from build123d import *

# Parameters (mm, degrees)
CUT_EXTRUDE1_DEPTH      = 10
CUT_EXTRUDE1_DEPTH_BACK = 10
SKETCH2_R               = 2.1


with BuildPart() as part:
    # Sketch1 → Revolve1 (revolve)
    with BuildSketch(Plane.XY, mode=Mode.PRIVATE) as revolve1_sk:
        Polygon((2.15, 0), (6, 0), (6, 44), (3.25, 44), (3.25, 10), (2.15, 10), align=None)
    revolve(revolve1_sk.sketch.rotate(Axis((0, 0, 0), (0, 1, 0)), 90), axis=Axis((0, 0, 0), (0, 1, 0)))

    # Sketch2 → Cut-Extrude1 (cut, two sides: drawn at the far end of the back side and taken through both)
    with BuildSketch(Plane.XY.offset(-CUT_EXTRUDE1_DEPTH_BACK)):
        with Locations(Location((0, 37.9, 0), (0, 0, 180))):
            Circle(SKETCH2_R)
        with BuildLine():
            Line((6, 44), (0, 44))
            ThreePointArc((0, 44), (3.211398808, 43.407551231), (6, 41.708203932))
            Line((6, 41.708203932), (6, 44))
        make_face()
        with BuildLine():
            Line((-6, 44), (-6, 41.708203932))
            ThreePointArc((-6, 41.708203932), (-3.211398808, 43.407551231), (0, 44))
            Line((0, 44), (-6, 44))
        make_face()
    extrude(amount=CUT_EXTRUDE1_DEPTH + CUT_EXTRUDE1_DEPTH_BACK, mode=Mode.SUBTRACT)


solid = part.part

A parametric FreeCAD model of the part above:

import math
import FreeCAD as App
import Part
import Sketcher

V = App.Vector
Q = App.Units.Quantity

doc = App.newDocument("Part")
body = doc.addObject("PartDesign::Body", "Body")

sketch1 = doc.addObject("Sketcher::SketchObject", "Sketch")
body.addObject(sketch1)
sketch1.AttachmentSupport = (doc.XY_Plane, [""])
sketch1.MapMode = "FlatFace"
sketch1.addGeometry([
    Part.LineSegment(V(2.1, 0, 0), V(6, 0, 0)),
    Part.LineSegment(V(6, 0, 0), V(6, 44, 0)),
    Part.LineSegment(V(6, 44, 0), V(3.2, 44, 0)),
    Part.LineSegment(V(3.2, 44, 0), V(3.2, 10, 0)),
    Part.LineSegment(V(3.2, 10, 0), V(2.1, 10, 0)),
    Part.LineSegment(V(2.1, 10, 0), V(2.1, 0, 0)),
], False)
sketch1.addConstraint([
    Sketcher.Constraint("Coincident", 0, 2, 1, 1),
    Sketcher.Constraint("Coincident", 1, 2, 2, 1),
    Sketcher.Constraint("Coincident", 2, 2, 3, 1),
    Sketcher.Constraint("Coincident", 3, 2, 4, 1),
    Sketcher.Constraint("Coincident", 4, 2, 5, 1),
    Sketcher.Constraint("Coincident", 5, 2, 0, 1),
    Sketcher.Constraint("Horizontal", 0),
    Sketcher.Constraint("Vertical", 1),
    Sketcher.Constraint("Horizontal", 2),
    Sketcher.Constraint("Vertical", 3),
    Sketcher.Constraint("Horizontal", 4),
    Sketcher.Constraint("Vertical", 5),
    Sketcher.Constraint("PointOnObject", 0, 2, -1),
    Sketcher.Constraint("DistanceY", 1, 1, 1, 2, Q("44 mm")),
    Sketcher.Constraint("DistanceY", 3, 2, 3, 1, Q("34 mm")),
    Sketcher.Constraint("DistanceX", 4, 2, 4, 1, Q("1.1 mm")),
    Sketcher.Constraint("DistanceX", -1, 1, 0, 2, Q("6 mm")),
    Sketcher.Constraint("DistanceX", 0, 1, 0, 2, Q("3.85 mm")),
])
revolution = doc.addObject("PartDesign::Revolution", "Revolution")
body.addObject(revolution)
revolution.Profile = sketch1
revolution.ReferenceAxis = (sketch1, ["V_Axis"])
revolution.Angle = 360

sketch2 = doc.addObject("Sketcher::SketchObject", "Sketch001")
body.addObject(sketch2)
sketch2.AttachmentSupport = (doc.XY_Plane, [""])
sketch2.MapMode = "FlatFace"
sketch2.addGeometry([
    Part.Circle(V(0, 37.9, 0), V(0, 0, 1), 2.1),
    Part.LineSegment(V(6, 44, 0), V(0, 44, 0)),
    Part.ArcOfCircle(Part.Circle(V(0, 35, 0), V(0, 0, 1), 9), math.radians(48), math.radians(90)),
    Part.LineSegment(V(6, 41.7, 0), V(6, 44, 0)),
    Part.LineSegment(V(-6, 44, 0), V(-6, 41.7, 0)),
    Part.ArcOfCircle(Part.Circle(V(0, 35, 0), V(0, 0, 1), 9), math.radians(90), math.radians(132)),
    Part.LineSegment(V(0, 44, 0), V(-6, 44, 0)),
], False)
sketch2.addConstraint([
    Sketcher.Constraint("Tangent", 1, 2, 2, 2),
    Sketcher.Constraint("Coincident", 2, 1, 3, 1),
    Sketcher.Constraint("Coincident", 3, 2, 1, 1),
    Sketcher.Constraint("Coincident", 4, 2, 5, 2),
    Sketcher.Constraint("Tangent", 5, 1, 6, 1),
    Sketcher.Constraint("Coincident", 6, 2, 4, 1),
    Sketcher.Constraint("Horizontal", 1),
    Sketcher.Constraint("Vertical", 3),
    Sketcher.Constraint("Vertical", 4),
    Sketcher.Constraint("Horizontal", 6),
    Sketcher.Constraint("Coincident", 5, 3, 2, 3),
    Sketcher.Constraint("Equal", 2, 5),
    Sketcher.Constraint("Symmetric", 2, 1, 4, 2, -2),
    Sketcher.Constraint("PointOnObject", 0, 3, -2),
    Sketcher.Constraint("Radius", 2, Q("9 mm")),
    Sketcher.Constraint("Diameter", 0, Q("4.2 mm")),
    Sketcher.Constraint("DistanceX", 1, 2, 1, 1, Q("6 mm")),
    Sketcher.Constraint("DistanceY", -1, 1, 2, 3, Q("35 mm")),
    Sketcher.Constraint("DistanceY", -1, 1, 0, 3, Q("37.9 mm")),
])
pocket1 = doc.addObject("PartDesign::Pocket", "Pocket")
body.addObject(pocket1)
pocket1.Profile = sketch2
pocket1.Type = "ThroughAll"
pocket1.Midplane = True

doc.recompute()
